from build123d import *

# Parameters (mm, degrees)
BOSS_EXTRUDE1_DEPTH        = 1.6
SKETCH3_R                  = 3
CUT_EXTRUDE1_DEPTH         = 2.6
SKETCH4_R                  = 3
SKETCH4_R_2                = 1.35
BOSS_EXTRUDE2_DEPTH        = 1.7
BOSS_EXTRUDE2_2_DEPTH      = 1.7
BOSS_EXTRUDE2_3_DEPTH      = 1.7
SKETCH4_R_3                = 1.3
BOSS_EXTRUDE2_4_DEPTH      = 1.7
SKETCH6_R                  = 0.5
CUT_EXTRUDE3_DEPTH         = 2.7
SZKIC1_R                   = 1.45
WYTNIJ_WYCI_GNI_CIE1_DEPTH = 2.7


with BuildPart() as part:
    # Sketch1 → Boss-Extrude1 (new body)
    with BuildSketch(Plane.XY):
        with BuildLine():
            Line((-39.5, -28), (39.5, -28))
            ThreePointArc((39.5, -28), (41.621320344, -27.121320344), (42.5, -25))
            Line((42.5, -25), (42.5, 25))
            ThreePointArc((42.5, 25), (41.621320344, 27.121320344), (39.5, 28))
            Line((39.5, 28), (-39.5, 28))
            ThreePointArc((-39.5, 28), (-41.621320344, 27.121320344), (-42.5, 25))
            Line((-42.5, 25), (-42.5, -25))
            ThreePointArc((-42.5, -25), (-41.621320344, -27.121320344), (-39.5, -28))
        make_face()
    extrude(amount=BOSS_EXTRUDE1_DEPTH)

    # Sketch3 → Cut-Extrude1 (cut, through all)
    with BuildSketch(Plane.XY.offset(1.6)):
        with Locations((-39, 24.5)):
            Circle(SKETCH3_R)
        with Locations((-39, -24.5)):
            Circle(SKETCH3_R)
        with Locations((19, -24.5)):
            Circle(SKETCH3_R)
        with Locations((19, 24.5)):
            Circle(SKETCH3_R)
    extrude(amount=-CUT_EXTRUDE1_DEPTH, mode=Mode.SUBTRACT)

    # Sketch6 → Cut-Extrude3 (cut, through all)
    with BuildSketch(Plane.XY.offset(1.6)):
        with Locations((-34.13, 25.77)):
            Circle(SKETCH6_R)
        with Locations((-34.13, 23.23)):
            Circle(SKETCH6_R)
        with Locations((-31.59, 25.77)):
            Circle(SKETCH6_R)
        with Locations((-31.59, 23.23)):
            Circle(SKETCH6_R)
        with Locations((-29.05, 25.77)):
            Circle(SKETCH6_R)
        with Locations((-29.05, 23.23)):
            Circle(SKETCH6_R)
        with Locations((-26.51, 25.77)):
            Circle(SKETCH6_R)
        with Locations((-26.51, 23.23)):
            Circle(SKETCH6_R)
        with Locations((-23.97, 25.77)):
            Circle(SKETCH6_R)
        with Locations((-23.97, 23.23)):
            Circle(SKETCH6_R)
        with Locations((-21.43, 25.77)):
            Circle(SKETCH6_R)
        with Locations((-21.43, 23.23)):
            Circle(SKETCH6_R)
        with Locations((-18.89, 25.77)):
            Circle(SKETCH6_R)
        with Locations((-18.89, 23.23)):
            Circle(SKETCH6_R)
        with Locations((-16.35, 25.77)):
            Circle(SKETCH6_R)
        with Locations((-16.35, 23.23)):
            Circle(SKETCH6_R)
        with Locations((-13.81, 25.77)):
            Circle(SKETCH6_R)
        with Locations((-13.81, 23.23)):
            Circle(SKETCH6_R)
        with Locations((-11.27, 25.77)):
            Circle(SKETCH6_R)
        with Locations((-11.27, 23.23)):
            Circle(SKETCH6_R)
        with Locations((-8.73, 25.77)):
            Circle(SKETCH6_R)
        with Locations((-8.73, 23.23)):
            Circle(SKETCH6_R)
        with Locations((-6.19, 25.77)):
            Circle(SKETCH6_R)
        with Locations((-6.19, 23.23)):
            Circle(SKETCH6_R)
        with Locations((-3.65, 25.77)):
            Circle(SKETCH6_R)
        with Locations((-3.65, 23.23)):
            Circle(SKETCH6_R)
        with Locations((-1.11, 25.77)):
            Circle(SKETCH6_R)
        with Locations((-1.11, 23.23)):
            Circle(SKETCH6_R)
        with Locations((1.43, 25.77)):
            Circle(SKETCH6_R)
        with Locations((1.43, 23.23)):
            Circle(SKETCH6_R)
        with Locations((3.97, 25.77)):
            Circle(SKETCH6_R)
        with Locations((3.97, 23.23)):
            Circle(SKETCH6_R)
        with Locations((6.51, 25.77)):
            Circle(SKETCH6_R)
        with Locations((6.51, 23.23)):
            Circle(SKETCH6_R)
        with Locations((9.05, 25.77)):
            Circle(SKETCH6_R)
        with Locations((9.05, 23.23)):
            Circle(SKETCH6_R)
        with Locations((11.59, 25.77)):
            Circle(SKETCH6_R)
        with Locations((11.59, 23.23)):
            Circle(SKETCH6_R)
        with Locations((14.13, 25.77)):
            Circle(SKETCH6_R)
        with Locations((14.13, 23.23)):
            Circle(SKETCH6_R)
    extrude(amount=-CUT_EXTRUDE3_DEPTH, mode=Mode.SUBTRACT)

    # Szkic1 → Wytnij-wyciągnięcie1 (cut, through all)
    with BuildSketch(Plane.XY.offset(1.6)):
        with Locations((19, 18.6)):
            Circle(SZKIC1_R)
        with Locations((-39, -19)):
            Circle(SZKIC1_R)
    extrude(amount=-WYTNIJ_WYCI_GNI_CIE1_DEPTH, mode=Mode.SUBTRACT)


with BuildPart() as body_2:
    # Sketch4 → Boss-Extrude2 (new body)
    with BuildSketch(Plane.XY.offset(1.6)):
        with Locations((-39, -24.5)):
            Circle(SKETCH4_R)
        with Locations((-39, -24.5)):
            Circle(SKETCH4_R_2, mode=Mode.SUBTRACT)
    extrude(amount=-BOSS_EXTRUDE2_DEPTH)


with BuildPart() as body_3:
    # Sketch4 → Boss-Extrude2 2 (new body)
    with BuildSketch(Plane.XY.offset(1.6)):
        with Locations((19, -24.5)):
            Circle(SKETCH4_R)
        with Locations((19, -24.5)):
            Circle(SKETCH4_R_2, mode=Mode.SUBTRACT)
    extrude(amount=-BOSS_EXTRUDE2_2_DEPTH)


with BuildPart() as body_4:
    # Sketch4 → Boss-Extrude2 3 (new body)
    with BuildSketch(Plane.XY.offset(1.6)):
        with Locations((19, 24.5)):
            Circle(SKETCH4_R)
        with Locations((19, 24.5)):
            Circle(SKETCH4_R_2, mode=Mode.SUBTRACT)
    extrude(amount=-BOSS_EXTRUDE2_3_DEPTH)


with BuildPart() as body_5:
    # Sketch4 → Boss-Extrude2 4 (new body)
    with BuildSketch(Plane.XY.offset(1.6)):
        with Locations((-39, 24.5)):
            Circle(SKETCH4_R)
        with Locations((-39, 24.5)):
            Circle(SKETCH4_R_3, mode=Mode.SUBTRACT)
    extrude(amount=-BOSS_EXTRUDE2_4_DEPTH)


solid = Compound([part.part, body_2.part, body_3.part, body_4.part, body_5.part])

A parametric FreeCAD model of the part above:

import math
import FreeCAD as App
import Part
import Sketcher

doc = App.newDocument("Part")
body = doc.addObject("PartDesign::Body", "Body")

sketch1 = doc.addObject("Sketcher::SketchObject", "Sketch")
body.addObject(sketch1)
sketch1.AttachmentSupport = (doc.XY_Plane, [""])
sketch1.MapMode = "FlatFace"
sketch1.addGeometry(Part.LineSegment(App.Vector(-39.5, -28, 0), App.Vector(39.5, -28, 0)), False)
sketch1.addGeometry(Part.ArcOfCircle(Part.Circle(App.Vector(39.5, -25, 0), App.Vector(0, 0, 1), 3), math.radians(-90), math.radians(0)), False)
sketch1.addGeometry(Part.LineSegment(App.Vector(42.5, -25, 0), App.Vector(42.5, 25, 0)), False)
sketch1.addGeometry(Part.ArcOfCircle(Part.Circle(App.Vector(39.5, 25, 0), App.Vector(0, 0, 1), 3), math.radians(0), math.radians(90)), False)
sketch1.addGeometry(Part.LineSegment(App.Vector(39.5, 28, 0), App.Vector(-39.5, 28, 0)), False)
sketch1.addGeometry(Part.ArcOfCircle(Part.Circle(App.Vector(-39.5, 25, 0), App.Vector(0, 0, 1), 3), math.radians(90), math.radians(180)), False)
sketch1.addGeometry(Part.LineSegment(App.Vector(-42.5, 25, 0), App.Vector(-42.5, -25, 0)), False)
sketch1.addGeometry(Part.ArcOfCircle(Part.Circle(App.Vector(-39.5, -25, 0), App.Vector(0, 0, 1), 3), math.radians(180), math.radians(270)), False)
sketch1.addConstraint(Sketcher.Constraint("Tangent", 0, 2, 1, 1))
sketch1.addConstraint(Sketcher.Constraint("Tangent", 1, 2, 2, 1))
sketch1.addConstraint(Sketcher.Constraint("Tangent", 2, 2, 3, 1))
sketch1.addConstraint(Sketcher.Constraint("Tangent", 3, 2, 4, 1))
sketch1.addConstraint(Sketcher.Constraint("Tangent", 4, 2, 5, 1))
sketch1.addConstraint(Sketcher.Constraint("Tangent", 5, 2, 6, 1))
sketch1.addConstraint(Sketcher.Constraint("Tangent", 6, 2, 7, 1))
sketch1.addConstraint(Sketcher.Constraint("Tangent", 7, 2, 0, 1))
sketch1.addConstraint(Sketcher.Constraint("Horizontal", 0))
sketch1.addConstraint(Sketcher.Constraint("Vertical", 2))
sketch1.addConstraint(Sketcher.Constraint("Horizontal", 4))
sketch1.addConstraint(Sketcher.Constraint("Vertical", 6))
sketch1.addConstraint(Sketcher.Constraint("Equal", 1, 3))
sketch1.addConstraint(Sketcher.Constraint("Equal", 3, 5))
sketch1.addConstraint(Sketcher.Constraint("Equal", 5, 7))
sketch1.addConstraint(Sketcher.Constraint("Symmetric", 1, 3, 5, 3, -1, 1))
sketch1.addConstraint(Sketcher.Constraint("Radius", 1, 3.0))
sketch1.addConstraint(Sketcher.Constraint("DistanceX", 0, 1, 0, 2, 79.0))
sketch1.addConstraint(Sketcher.Constraint("DistanceY", 2, 1, 2, 2, 50.0))
pad1 = doc.addObject("PartDesign::Pad", "Pad")
body.addObject(pad1)
pad1.Profile = sketch1
pad1.Length = 1.6

sketch2 = doc.addObject("Sketcher::SketchObject", "Sketch001")
body.addObject(sketch2)
sketch2.AttachmentSupport = (doc.XY_Plane, [""])
sketch2.MapMode = "FlatFace"
sketch2.AttachmentOffset = App.Placement(App.Vector(0, 0, 1.6), App.Rotation())
sketch2.addGeometry(Part.Circle(App.Vector(-39, 24.5, 0), App.Vector(0, 0, 1), 3), False)
sketch2.addGeometry(Part.Circle(App.Vector(-39, -24.5, 0), App.Vector(0, 0, 1), 3), False)
sketch2.addGeometry(Part.Circle(App.Vector(19, -24.5, 0), App.Vector(0, 0, 1), 3), False)
sketch2.addGeometry(Part.Circle(App.Vector(19, 24.5, 0), App.Vector(0, 0, 1), 3), False)
sketch2.addConstraint(Sketcher.Constraint("Equal", 0, 1))
sketch2.addConstraint(Sketcher.Constraint("Equal", 1, 2))
sketch2.addConstraint(Sketcher.Constraint("Equal", 2, 3))
sketch2.addConstraint(Sketcher.Constraint("Symmetric", 0, 3, 1, 3, -1))
sketch2.addConstraint(Sketcher.Constraint("Symmetric", 2, 3, 3, 3, -1))
sketch2.addConstraint(Sketcher.Constraint("Horizontal", 1, 3, 2, 3))
sketch2.addConstraint(Sketcher.Constraint("Diameter", 0, 6.0))
sketch2.addConstraint(Sketcher.Constraint("DistanceX", 0, 3, -1, 1, 39.0))
sketch2.addConstraint(Sketcher.Constraint("DistanceX", -1, 1, 2, 3, 19.0))
sketch2.addConstraint(Sketcher.Constraint("DistanceY", 1, 3, 0, 3, 49.0))
pocket1 = doc.addObject("PartDesign::Pocket", "Pocket")
body.addObject(pocket1)
pocket1.Profile = sketch2
pocket1.Type = "ThroughAll"

sketch3 = doc.addObject("Sketcher::SketchObject", "Sketch002")
body.addObject(sketch3)
sketch3.AttachmentSupport = (doc.XY_Plane, [""])
sketch3.MapMode = "FlatFace"
sketch3.AttachmentOffset = App.Placement(App.Vector(0, 0, 1.6), App.Rotation())
sketch3.addGeometry(Part.Circle(App.Vector(-34.13, 25.77, 0), App.Vector(0, 0, 1), 0.5), False)
sketch3.addGeometry(Part.Circle(App.Vector(-34.13, 23.23, 0), App.Vector(0, 0, 1), 0.5), False)
sketch3.addGeometry(Part.Circle(App.Vector(-31.59, 25.77, 0), App.Vector(0, 0, 1), 0.5), False)
sketch3.addGeometry(Part.Circle(App.Vector(-31.59, 23.23, 0), App.Vector(0, 0, 1), 0.5), False)
sketch3.addGeometry(Part.Circle(App.Vector(-29.05, 25.77, 0), App.Vector(0, 0, 1), 0.5), False)
sketch3.addGeometry(Part.Circle(App.Vector(-29.05, 23.23, 0), App.Vector(0, 0, 1), 0.5), False)
sketch3.addGeometry(Part.Circle(App.Vector(-26.51, 25.77, 0), App.Vector(0, 0, 1), 0.5), False)
sketch3.addGeometry(Part.Circle(App.Vector(-26.51, 23.23, 0), App.Vector(0, 0, 1), 0.5), False)
sketch3.addGeometry(Part.Circle(App.Vector(-23.97, 25.77, 0), App.Vector(0, 0, 1), 0.5), False)
sketch3.addGeometry(Part.Circle(App.Vector(-23.97, 23.23, 0), App.Vector(0, 0, 1), 0.5), False)
sketch3.addGeometry(Part.Circle(App.Vector(-21.43, 25.77, 0), App.Vector(0, 0, 1), 0.5), False)
sketch3.addGeometry(Part.Circle(App.Vector(-21.43, 23.23, 0), App.Vector(0, 0, 1), 0.5), False)
sketch3.addGeometry(Part.Circle(App.Vector(-18.89, 25.77, 0), App.Vector(0, 0, 1), 0.5), False)
sketch3.addGeometry(Part.Circle(App.Vector(-18.89, 23.23, 0), App.Vector(0, 0, 1), 0.5), False)
sketch3.addGeometry(Part.Circle(App.Vector(-16.35, 25.77, 0), App.Vector(0, 0, 1), 0.5), False)
sketch3.addGeometry(Part.Circle(App.Vector(-16.35, 23.23, 0), App.Vector(0, 0, 1), 0.5), False)
sketch3.addGeometry(Part.Circle(App.Vector(-13.81, 25.77, 0), App.Vector(0, 0, 1), 0.5), False)
sketch3.addGeometry(Part.Circle(App.Vector(-13.81, 23.23, 0), App.Vector(0, 0, 1), 0.5), False)
sketch3.addGeometry(Part.Circle(App.Vector(-11.27, 25.77, 0), App.Vector(0, 0, 1), 0.5), False)
sketch3.addGeometry(Part.Circle(App.Vector(-11.27, 23.23, 0), App.Vector(0, 0, 1), 0.5), False)
sketch3.addGeometry(Part.Circle(App.Vector(-8.73, 25.77, 0), App.Vector(0, 0, 1), 0.5), False)
sketch3.addGeometry(Part.Circle(App.Vector(-8.73, 23.23, 0), App.Vector(0, 0, 1), 0.5), False)
sketch3.addGeometry(Part.Circle(App.Vector(-6.19, 25.77, 0), App.Vector(0, 0, 1), 0.5), False)
sketch3.addGeometry(Part.Circle(App.Vector(-6.19, 23.23, 0), App.Vector(0, 0, 1), 0.5), False)
sketch3.addGeometry(Part.Circle(App.Vector(-3.65, 25.77, 0), App.Vector(0, 0, 1), 0.5), False)
sketch3.addGeometry(Part.Circle(App.Vector(-3.65, 23.23, 0), App.Vector(0, 0, 1), 0.5), False)
sketch3.addGeometry(Part.Circle(App.Vector(-1.11, 25.77, 0), App.Vector(0, 0, 1), 0.5), False)
sketch3.addGeometry(Part.Circle(App.Vector(-1.11, 23.23, 0), App.Vector(0, 0, 1), 0.5), False)
sketch3.addGeometry(Part.Circle(App.Vector(1.43, 25.77, 0), App.Vector(0, 0, 1), 0.5), False)
sketch3.addGeometry(Part.Circle(App.Vector(1.43, 23.23, 0), App.Vector(0, 0, 1), 0.5), False)
sketch3.addGeometry(Part.Circle(App.Vector(3.97, 25.77, 0), App.Vector(0, 0, 1), 0.5), False)
sketch3.addGeometry(Part.Circle(App.Vector(3.97, 23.23, 0), App.Vector(0, 0, 1), 0.5), False)
sketch3.addGeometry(Part.Circle(App.Vector(6.51, 25.77, 0), App.Vector(0, 0, 1), 0.5), False)
sketch3.addGeometry(Part.Circle(App.Vector(6.51, 23.23, 0), App.Vector(0, 0, 1), 0.5), False)
sketch3.addGeometry(Part.Circle(App.Vector(9.05, 25.77, 0), App.Vector(0, 0, 1), 0.5), False)
sketch3.addGeometry(Part.Circle(App.Vector(9.05, 23.23, 0), App.Vector(0, 0, 1), 0.5), False)
sketch3.addGeometry(Part.Circle(App.Vector(11.59, 25.77, 0), App.Vector(0, 0, 1), 0.5), False)
sketch3.addGeometry(Part.Circle(App.Vector(11.59, 23.23, 0), App.Vector(0, 0, 1), 0.5), False)
sketch3.addGeometry(Part.Circle(App.Vector(14.13, 25.77, 0), App.Vector(0, 0, 1), 0.5), False)
sketch3.addGeometry(Part.Circle(App.Vector(14.13, 23.23, 0), App.Vector(0, 0, 1), 0.5), False)
sketch3.addConstraint(Sketcher.Constraint("Equal", 0, 1))
sketch3.addConstraint(Sketcher.Constraint("Equal", 1, 2))
sketch3.addConstraint(Sketcher.Constraint("Equal", 2, 3))
sketch3.addConstraint(Sketcher.Constraint("Equal", 3, 4))
sketch3.addConstraint(Sketcher.Constraint("Equal", 4, 5))
sketch3.addConstraint(Sketcher.Constraint("Equal", 5, 6))
sketch3.addConstraint(Sketcher.Constraint("Equal", 6, 7))
sketch3.addConstraint(Sketcher.Constraint("Equal", 7, 8))
sketch3.addConstraint(Sketcher.Constraint("Equal", 8, 9))
sketch3.addConstraint(Sketcher.Constraint("Equal", 9, 10))
sketch3.addConstraint(Sketcher.Constraint("Equal", 10, 11))
sketch3.addConstraint(Sketcher.Constraint("Equal", 11, 12))
sketch3.addConstraint(Sketcher.Constraint("Equal", 12, 13))
sketch3.addConstraint(Sketcher.Constraint("Equal", 13, 14))
sketch3.addConstraint(Sketcher.Constraint("Equal", 14, 15))
sketch3.addConstraint(Sketcher.Constraint("Equal", 15, 16))
sketch3.addConstraint(Sketcher.Constraint("Equal", 16, 17))
sketch3.addConstraint(Sketcher.Constraint("Equal", 17, 18))
sketch3.addConstraint(Sketcher.Constraint("Equal", 18, 19))
sketch3.addConstraint(Sketcher.Constraint("Equal", 19, 20))
sketch3.addConstraint(Sketcher.Constraint("Equal", 20, 21))
sketch3.addConstraint(Sketcher.Constraint("Equal", 21, 22))
sketch3.addConstraint(Sketcher.Constraint("Equal", 22, 23))
sketch3.addConstraint(Sketcher.Constraint("Equal", 23, 24))
sketch3.addConstraint(Sketcher.Constraint("Equal", 24, 25))
sketch3.addConstraint(Sketcher.Constraint("Equal", 25, 26))
sketch3.addConstraint(Sketcher.Constraint("Equal", 26, 27))
sketch3.addConstraint(Sketcher.Constraint("Equal", 27, 28))
sketch3.addConstraint(Sketcher.Constraint("Equal", 28, 29))
sketch3.addConstraint(Sketcher.Constraint("Equal", 29, 30))
sketch3.addConstraint(Sketcher.Constraint("Equal", 30, 31))
sketch3.addConstraint(Sketcher.Constraint("Equal", 31, 32))
sketch3.addConstraint(Sketcher.Constraint("Equal", 32, 33))
sketch3.addConstraint(Sketcher.Constraint("Equal", 33, 34))
sketch3.addConstraint(Sketcher.Constraint("Equal", 34, 35))
sketch3.addConstraint(Sketcher.Constraint("Equal", 35, 36))
sketch3.addConstraint(Sketcher.Constraint("Equal", 36, 37))
sketch3.addConstraint(Sketcher.Constraint("Equal", 37, 38))
sketch3.addConstraint(Sketcher.Constraint("Equal", 38, 39))
sketch3.addConstraint(Sketcher.Constraint("Horizontal", 0, 3, 2, 3))
sketch3.addConstraint(Sketcher.Constraint("Horizontal", 1, 3, 3, 3))
sketch3.addConstraint(Sketcher.Constraint("Horizontal", 2, 3, 4, 3))
sketch3.addConstraint(Sketcher.Constraint("Horizontal", 3, 3, 5, 3))
sketch3.addConstraint(Sketcher.Constraint("Horizontal", 4, 3, 6, 3))
sketch3.addConstraint(Sketcher.Constraint("Horizontal", 5, 3, 7, 3))
sketch3.addConstraint(Sketcher.Constraint("Horizontal", 6, 3, 8, 3))
sketch3.addConstraint(Sketcher.Constraint("Horizontal", 7, 3, 9, 3))
sketch3.addConstraint(Sketcher.Constraint("Horizontal", 8, 3, 10, 3))
sketch3.addConstraint(Sketcher.Constraint("Horizontal", 9, 3, 11, 3))
sketch3.addConstraint(Sketcher.Constraint("Horizontal", 10, 3, 12, 3))
sketch3.addConstraint(Sketcher.Constraint("Horizontal", 11, 3, 13, 3))
sketch3.addConstraint(Sketcher.Constraint("Horizontal", 12, 3, 14, 3))
sketch3.addConstraint(Sketcher.Constraint("Horizontal", 13, 3, 15, 3))
sketch3.addConstraint(Sketcher.Constraint("Horizontal", 14, 3, 16, 3))
sketch3.addConstraint(Sketcher.Constraint("Horizontal", 15, 3, 17, 3))
sketch3.addConstraint(Sketcher.Constraint("Horizontal", 16, 3, 18, 3))
sketch3.addConstraint(Sketcher.Constraint("Horizontal", 17, 3, 19, 3))
sketch3.addConstraint(Sketcher.Constraint("Horizontal", 18, 3, 20, 3))
sketch3.addConstraint(Sketcher.Constraint("Horizontal", 19, 3, 21, 3))
sketch3.addConstraint(Sketcher.Constraint("Horizontal", 20, 3, 22, 3))
sketch3.addConstraint(Sketcher.Constraint("Horizontal", 21, 3, 23, 3))
sketch3.addConstraint(Sketcher.Constraint("Horizontal", 22, 3, 24, 3))
sketch3.addConstraint(Sketcher.Constraint("Horizontal", 23, 3, 25, 3))
sketch3.addConstraint(Sketcher.Constraint("Horizontal", 24, 3, 26, 3))
sketch3.addConstraint(Sketcher.Constraint("Horizontal", 25, 3, 27, 3))
sketch3.addConstraint(Sketcher.Constraint("Horizontal", 26, 3, 28, 3))
sketch3.addConstraint(Sketcher.Constraint("Horizontal", 27, 3, 29, 3))
sketch3.addConstraint(Sketcher.Constraint("Horizontal", 28, 3, 30, 3))
sketch3.addConstraint(Sketcher.Constraint("Horizontal", 29, 3, 31, 3))
sketch3.addConstraint(Sketcher.Constraint("Horizontal", 30, 3, 32, 3))
sketch3.addConstraint(Sketcher.Constraint("Horizontal", 31, 3, 33, 3))
sketch3.addConstraint(Sketcher.Constraint("Horizontal", 32, 3, 34, 3))
sketch3.addConstraint(Sketcher.Constraint("Horizontal", 33, 3, 35, 3))
sketch3.addConstraint(Sketcher.Constraint("Horizontal", 34, 3, 36, 3))
sketch3.addConstraint(Sketcher.Constraint("Horizontal", 35, 3, 37, 3))
sketch3.addConstraint(Sketcher.Constraint("Horizontal", 36, 3, 38, 3))
sketch3.addConstraint(Sketcher.Constraint("Horizontal", 37, 3, 39, 3))
sketch3.addConstraint(Sketcher.Constraint("Vertical", 0, 3, 1, 3))
sketch3.addConstraint(Sketcher.Constraint("Vertical", 2, 3, 3, 3))
sketch3.addConstraint(Sketcher.Constraint("Vertical", 4, 3, 5, 3))
sketch3.addConstraint(Sketcher.Constraint("Vertical", 6, 3, 7, 3))
sketch3.addConstraint(Sketcher.Constraint("Vertical", 8, 3, 9, 3))
sketch3.addConstraint(Sketcher.Constraint("Vertical", 10, 3, 11, 3))
sketch3.addConstraint(Sketcher.Constraint("Vertical", 12, 3, 13, 3))
sketch3.addConstraint(Sketcher.Constraint("Vertical", 14, 3, 15, 3))
sketch3.addConstraint(Sketcher.Constraint("Vertical", 16, 3, 17, 3))
sketch3.addConstraint(Sketcher.Constraint("Vertical", 18, 3, 19, 3))
sketch3.addConstraint(Sketcher.Constraint("Vertical", 20, 3, 21, 3))
sketch3.addConstraint(Sketcher.Constraint("Vertical", 22, 3, 23, 3))
sketch3.addConstraint(Sketcher.Constraint("Vertical", 24, 3, 25, 3))
sketch3.addConstraint(Sketcher.Constraint("Vertical", 26, 3, 27, 3))
sketch3.addConstraint(Sketcher.Constraint("Vertical", 28, 3, 29, 3))
sketch3.addConstraint(Sketcher.Constraint("Vertical", 30, 3, 31, 3))
sketch3.addConstraint(Sketcher.Constraint("Vertical", 32, 3, 33, 3))
sketch3.addConstraint(Sketcher.Constraint("Vertical", 34, 3, 35, 3))
sketch3.addConstraint(Sketcher.Constraint("Vertical", 36, 3, 37, 3))
sketch3.addConstraint(Sketcher.Constraint("Vertical", 38, 3, 39, 3))
sketch3.addConstraint(Sketcher.Constraint("Diameter", 0, 1.0))
sketch3.addConstraint(Sketcher.Constraint("DistanceX", 0, 3, -1, 1, 34.13))
sketch3.addConstraint(Sketcher.Constraint("DistanceY", -1, 1, 0, 3, 25.77))
sketch3.addConstraint(Sketcher.Constraint("DistanceY", -1, 1, 1, 3, 23.23))
sketch3.addConstraint(Sketcher.Constraint("DistanceX", 2, 3, -1, 1, 31.59))
sketch3.addConstraint(Sketcher.Constraint("DistanceX", 4, 3, -1, 1, 29.05))
sketch3.addConstraint(Sketcher.Constraint("DistanceX", 6, 3, -1, 1, 26.51))
sketch3.addConstraint(Sketcher.Constraint("DistanceX", 8, 3, -1, 1, 23.97))
sketch3.addConstraint(Sketcher.Constraint("DistanceX", 10, 3, -1, 1, 21.43))
sketch3.addConstraint(Sketcher.Constraint("DistanceX", 12, 3, -1, 1, 18.89))
sketch3.addConstraint(Sketcher.Constraint("DistanceX", 14, 3, -1, 1, 16.35))
sketch3.addConstraint(Sketcher.Constraint("DistanceX", 16, 3, -1, 1, 13.81))
sketch3.addConstraint(Sketcher.Constraint("DistanceX", 18, 3, -1, 1, 11.27))
sketch3.addConstraint(Sketcher.Constraint("DistanceX", 20, 3, -1, 1, 8.73))
sketch3.addConstraint(Sketcher.Constraint("DistanceX", 22, 3, -1, 1, 6.19))
sketch3.addConstraint(Sketcher.Constraint("DistanceX", 24, 3, -1, 1, 3.65))
sketch3.addConstraint(Sketcher.Constraint("DistanceX", 26, 3, -1, 1, 1.11))
sketch3.addConstraint(Sketcher.Constraint("DistanceX", -1, 1, 28, 3, 1.43))
sketch3.addConstraint(Sketcher.Constraint("DistanceX", -1, 1, 30, 3, 3.97))
sketch3.addConstraint(Sketcher.Constraint("DistanceX", -1, 1, 32, 3, 6.51))
sketch3.addConstraint(Sketcher.Constraint("DistanceX", -1, 1, 34, 3, 9.05))
sketch3.addConstraint(Sketcher.Constraint("DistanceX", -1, 1, 36, 3, 11.59))
sketch3.addConstraint(Sketcher.Constraint("DistanceX", -1, 1, 38, 3, 14.13))
pocket2 = doc.addObject("PartDesign::Pocket", "Pocket001")
body.addObject(pocket2)
pocket2.Profile = sketch3
pocket2.Type = "ThroughAll"

sketch4 = doc.addObject("Sketcher::SketchObject", "Sketch003")
body.addObject(sketch4)
sketch4.AttachmentSupport = (doc.XY_Plane, [""])
sketch4.MapMode = "FlatFace"
sketch4.AttachmentOffset = App.Placement(App.Vector(0, 0, 1.6), App.Rotation())
sketch4.addGeometry(Part.Circle(App.Vector(19, 18.6, 0), App.Vector(0, 0, 1), 1.45), False)
sketch4.addGeometry(Part.Circle(App.Vector(-39, -19, 0), App.Vector(0, 0, 1), 1.45), False)
sketch4.addConstraint(Sketcher.Constraint("Equal", 0, 1))
sketch4.addConstraint(Sketcher.Constraint("Diameter", 0, 2.9))
sketch4.addConstraint(Sketcher.Constraint("DistanceX", -1, 1, 0, 3, 19.0))
sketch4.addConstraint(Sketcher.Constraint("DistanceX", 1, 3, -1, 1, 39.0))
sketch4.addConstraint(Sketcher.Constraint("DistanceY", 1, 3, -1, 1, 19.0))
sketch4.addConstraint(Sketcher.Constraint("DistanceY", -1, 1, 0, 3, 18.6))
pocket3 = doc.addObject("PartDesign::Pocket", "Pocket002")
body.addObject(pocket3)
pocket3.Profile = sketch4
pocket3.Type = "ThroughAll"
body2 = doc.addObject("PartDesign::Body", "Body001")

sketch5 = doc.addObject("Sketcher::SketchObject", "Sketch004")
body2.addObject(sketch5)
sketch5.AttachmentSupport = (doc.getObject("XY_Plane001"), [""])
sketch5.MapMode = "FlatFace"
sketch5.AttachmentOffset = App.Placement(App.Vector(0, 0, 1.6), App.Rotation())
sketch5.addGeometry(Part.Circle(App.Vector(-39, -24.5, 0), App.Vector(0, 0, 1), 3), False)
sketch5.addGeometry(Part.Circle(App.Vector(-39, -24.5, 0), App.Vector(0, 0, 1), 1.35), False)
sketch5.addConstraint(Sketcher.Constraint("Coincident", 1, 3, 0, 3))
sketch5.addConstraint(Sketcher.Constraint("Diameter", 0, 6.0))
sketch5.addConstraint(Sketcher.Constraint("Diameter", 1, 2.7))
sketch5.addConstraint(Sketcher.Constraint("DistanceX", 0, 3, -1, 1, 39.0))
sketch5.addConstraint(Sketcher.Constraint("DistanceY", 0, 3, -1, 1, 24.5))
pad2 = doc.addObject("PartDesign::Pad", "Pad001")
body2.addObject(pad2)
pad2.Profile = sketch5
pad2.Length = 1.7
pad2.Reversed = True
body3 = doc.addObject("PartDesign::Body", "Body002")

sketch6 = doc.addObject("Sketcher::SketchObject", "Sketch005")
body3.addObject(sketch6)
sketch6.AttachmentSupport = (doc.getObject("XY_Plane002"), [""])
sketch6.MapMode = "FlatFace"
sketch6.AttachmentOffset = App.Placement(App.Vector(0, 0, 1.6), App.Rotation())
sketch6.addGeometry(Part.Circle(App.Vector(19, -24.5, 0), App.Vector(0, 0, 1), 3), False)
sketch6.addGeometry(Part.Circle(App.Vector(19, -24.5, 0), App.Vector(0, 0, 1), 1.35), False)
sketch6.addConstraint(Sketcher.Constraint("Coincident", 1, 3, 0, 3))
sketch6.addConstraint(Sketcher.Constraint("Diameter", 0, 6.0))
sketch6.addConstraint(Sketcher.Constraint("Diameter", 1, 2.7))
sketch6.addConstraint(Sketcher.Constraint("DistanceX", -1, 1, 0, 3, 19.0))
sketch6.addConstraint(Sketcher.Constraint("DistanceY", 0, 3, -1, 1, 24.5))
pad3 = doc.addObject("PartDesign::Pad", "Pad002")
body3.addObject(pad3)
pad3.Profile = sketch6
pad3.Length = 1.7
pad3.Reversed = True
body4 = doc.addObject("PartDesign::Body", "Body003")

sketch7 = doc.addObject("Sketcher::SketchObject", "Sketch006")
body4.addObject(sketch7)
sketch7.AttachmentSupport = (doc.getObject("XY_Plane003"), [""])
sketch7.MapMode = "FlatFace"
sketch7.AttachmentOffset = App.Placement(App.Vector(0, 0, 1.6), App.Rotation())
sketch7.addGeometry(Part.Circle(App.Vector(19, 24.5, 0), App.Vector(0, 0, 1), 3), False)
sketch7.addGeometry(Part.Circle(App.Vector(19, 24.5, 0), App.Vector(0, 0, 1), 1.35), False)
sketch7.addConstraint(Sketcher.Constraint("Coincident", 1, 3, 0, 3))
sketch7.addConstraint(Sketcher.Constraint("Diameter", 0, 6.0))
sketch7.addConstraint(Sketcher.Constraint("Diameter", 1, 2.7))
sketch7.addConstraint(Sketcher.Constraint("DistanceX", -1, 1, 0, 3, 19.0))
sketch7.addConstraint(Sketcher.Constraint("DistanceY", -1, 1, 0, 3, 24.5))
pad4 = doc.addObject("PartDesign::Pad", "Pad003")
body4.addObject(pad4)
pad4.Profile = sketch7
pad4.Length = 1.7
pad4.Reversed = True
body5 = doc.addObject("PartDesign::Body", "Body004")

sketch8 = doc.addObject("Sketcher::SketchObject", "Sketch007")
body5.addObject(sketch8)
sketch8.AttachmentSupport = (doc.getObject("XY_Plane004"), [""])
sketch8.MapMode = "FlatFace"
sketch8.AttachmentOffset = App.Placement(App.Vector(0, 0, 1.6), App.Rotation())
sketch8.addGeometry(Part.Circle(App.Vector(-39, 24.5, 0), App.Vector(0, 0, 1), 3), False)
sketch8.addGeometry(Part.Circle(App.Vector(-39, 24.5, 0), App.Vector(0, 0, 1), 1.3), False)
sketch8.addConstraint(Sketcher.Constraint("Coincident", 1, 3, 0, 3))
sketch8.addConstraint(Sketcher.Constraint("Diameter", 0, 6.0))
sketch8.addConstraint(Sketcher.Constraint("Diameter", 1, 2.6))
sketch8.addConstraint(Sketcher.Constraint("DistanceX", 0, 3, -1, 1, 39.0))
sketch8.addConstraint(Sketcher.Constraint("DistanceY", -1, 1, 0, 3, 24.5))
pad5 = doc.addObject("PartDesign::Pad", "Pad004")
body5.addObject(pad5)
pad5.Profile = sketch8
pad5.Length = 1.7
pad5.Reversed = True

doc.recompute()
